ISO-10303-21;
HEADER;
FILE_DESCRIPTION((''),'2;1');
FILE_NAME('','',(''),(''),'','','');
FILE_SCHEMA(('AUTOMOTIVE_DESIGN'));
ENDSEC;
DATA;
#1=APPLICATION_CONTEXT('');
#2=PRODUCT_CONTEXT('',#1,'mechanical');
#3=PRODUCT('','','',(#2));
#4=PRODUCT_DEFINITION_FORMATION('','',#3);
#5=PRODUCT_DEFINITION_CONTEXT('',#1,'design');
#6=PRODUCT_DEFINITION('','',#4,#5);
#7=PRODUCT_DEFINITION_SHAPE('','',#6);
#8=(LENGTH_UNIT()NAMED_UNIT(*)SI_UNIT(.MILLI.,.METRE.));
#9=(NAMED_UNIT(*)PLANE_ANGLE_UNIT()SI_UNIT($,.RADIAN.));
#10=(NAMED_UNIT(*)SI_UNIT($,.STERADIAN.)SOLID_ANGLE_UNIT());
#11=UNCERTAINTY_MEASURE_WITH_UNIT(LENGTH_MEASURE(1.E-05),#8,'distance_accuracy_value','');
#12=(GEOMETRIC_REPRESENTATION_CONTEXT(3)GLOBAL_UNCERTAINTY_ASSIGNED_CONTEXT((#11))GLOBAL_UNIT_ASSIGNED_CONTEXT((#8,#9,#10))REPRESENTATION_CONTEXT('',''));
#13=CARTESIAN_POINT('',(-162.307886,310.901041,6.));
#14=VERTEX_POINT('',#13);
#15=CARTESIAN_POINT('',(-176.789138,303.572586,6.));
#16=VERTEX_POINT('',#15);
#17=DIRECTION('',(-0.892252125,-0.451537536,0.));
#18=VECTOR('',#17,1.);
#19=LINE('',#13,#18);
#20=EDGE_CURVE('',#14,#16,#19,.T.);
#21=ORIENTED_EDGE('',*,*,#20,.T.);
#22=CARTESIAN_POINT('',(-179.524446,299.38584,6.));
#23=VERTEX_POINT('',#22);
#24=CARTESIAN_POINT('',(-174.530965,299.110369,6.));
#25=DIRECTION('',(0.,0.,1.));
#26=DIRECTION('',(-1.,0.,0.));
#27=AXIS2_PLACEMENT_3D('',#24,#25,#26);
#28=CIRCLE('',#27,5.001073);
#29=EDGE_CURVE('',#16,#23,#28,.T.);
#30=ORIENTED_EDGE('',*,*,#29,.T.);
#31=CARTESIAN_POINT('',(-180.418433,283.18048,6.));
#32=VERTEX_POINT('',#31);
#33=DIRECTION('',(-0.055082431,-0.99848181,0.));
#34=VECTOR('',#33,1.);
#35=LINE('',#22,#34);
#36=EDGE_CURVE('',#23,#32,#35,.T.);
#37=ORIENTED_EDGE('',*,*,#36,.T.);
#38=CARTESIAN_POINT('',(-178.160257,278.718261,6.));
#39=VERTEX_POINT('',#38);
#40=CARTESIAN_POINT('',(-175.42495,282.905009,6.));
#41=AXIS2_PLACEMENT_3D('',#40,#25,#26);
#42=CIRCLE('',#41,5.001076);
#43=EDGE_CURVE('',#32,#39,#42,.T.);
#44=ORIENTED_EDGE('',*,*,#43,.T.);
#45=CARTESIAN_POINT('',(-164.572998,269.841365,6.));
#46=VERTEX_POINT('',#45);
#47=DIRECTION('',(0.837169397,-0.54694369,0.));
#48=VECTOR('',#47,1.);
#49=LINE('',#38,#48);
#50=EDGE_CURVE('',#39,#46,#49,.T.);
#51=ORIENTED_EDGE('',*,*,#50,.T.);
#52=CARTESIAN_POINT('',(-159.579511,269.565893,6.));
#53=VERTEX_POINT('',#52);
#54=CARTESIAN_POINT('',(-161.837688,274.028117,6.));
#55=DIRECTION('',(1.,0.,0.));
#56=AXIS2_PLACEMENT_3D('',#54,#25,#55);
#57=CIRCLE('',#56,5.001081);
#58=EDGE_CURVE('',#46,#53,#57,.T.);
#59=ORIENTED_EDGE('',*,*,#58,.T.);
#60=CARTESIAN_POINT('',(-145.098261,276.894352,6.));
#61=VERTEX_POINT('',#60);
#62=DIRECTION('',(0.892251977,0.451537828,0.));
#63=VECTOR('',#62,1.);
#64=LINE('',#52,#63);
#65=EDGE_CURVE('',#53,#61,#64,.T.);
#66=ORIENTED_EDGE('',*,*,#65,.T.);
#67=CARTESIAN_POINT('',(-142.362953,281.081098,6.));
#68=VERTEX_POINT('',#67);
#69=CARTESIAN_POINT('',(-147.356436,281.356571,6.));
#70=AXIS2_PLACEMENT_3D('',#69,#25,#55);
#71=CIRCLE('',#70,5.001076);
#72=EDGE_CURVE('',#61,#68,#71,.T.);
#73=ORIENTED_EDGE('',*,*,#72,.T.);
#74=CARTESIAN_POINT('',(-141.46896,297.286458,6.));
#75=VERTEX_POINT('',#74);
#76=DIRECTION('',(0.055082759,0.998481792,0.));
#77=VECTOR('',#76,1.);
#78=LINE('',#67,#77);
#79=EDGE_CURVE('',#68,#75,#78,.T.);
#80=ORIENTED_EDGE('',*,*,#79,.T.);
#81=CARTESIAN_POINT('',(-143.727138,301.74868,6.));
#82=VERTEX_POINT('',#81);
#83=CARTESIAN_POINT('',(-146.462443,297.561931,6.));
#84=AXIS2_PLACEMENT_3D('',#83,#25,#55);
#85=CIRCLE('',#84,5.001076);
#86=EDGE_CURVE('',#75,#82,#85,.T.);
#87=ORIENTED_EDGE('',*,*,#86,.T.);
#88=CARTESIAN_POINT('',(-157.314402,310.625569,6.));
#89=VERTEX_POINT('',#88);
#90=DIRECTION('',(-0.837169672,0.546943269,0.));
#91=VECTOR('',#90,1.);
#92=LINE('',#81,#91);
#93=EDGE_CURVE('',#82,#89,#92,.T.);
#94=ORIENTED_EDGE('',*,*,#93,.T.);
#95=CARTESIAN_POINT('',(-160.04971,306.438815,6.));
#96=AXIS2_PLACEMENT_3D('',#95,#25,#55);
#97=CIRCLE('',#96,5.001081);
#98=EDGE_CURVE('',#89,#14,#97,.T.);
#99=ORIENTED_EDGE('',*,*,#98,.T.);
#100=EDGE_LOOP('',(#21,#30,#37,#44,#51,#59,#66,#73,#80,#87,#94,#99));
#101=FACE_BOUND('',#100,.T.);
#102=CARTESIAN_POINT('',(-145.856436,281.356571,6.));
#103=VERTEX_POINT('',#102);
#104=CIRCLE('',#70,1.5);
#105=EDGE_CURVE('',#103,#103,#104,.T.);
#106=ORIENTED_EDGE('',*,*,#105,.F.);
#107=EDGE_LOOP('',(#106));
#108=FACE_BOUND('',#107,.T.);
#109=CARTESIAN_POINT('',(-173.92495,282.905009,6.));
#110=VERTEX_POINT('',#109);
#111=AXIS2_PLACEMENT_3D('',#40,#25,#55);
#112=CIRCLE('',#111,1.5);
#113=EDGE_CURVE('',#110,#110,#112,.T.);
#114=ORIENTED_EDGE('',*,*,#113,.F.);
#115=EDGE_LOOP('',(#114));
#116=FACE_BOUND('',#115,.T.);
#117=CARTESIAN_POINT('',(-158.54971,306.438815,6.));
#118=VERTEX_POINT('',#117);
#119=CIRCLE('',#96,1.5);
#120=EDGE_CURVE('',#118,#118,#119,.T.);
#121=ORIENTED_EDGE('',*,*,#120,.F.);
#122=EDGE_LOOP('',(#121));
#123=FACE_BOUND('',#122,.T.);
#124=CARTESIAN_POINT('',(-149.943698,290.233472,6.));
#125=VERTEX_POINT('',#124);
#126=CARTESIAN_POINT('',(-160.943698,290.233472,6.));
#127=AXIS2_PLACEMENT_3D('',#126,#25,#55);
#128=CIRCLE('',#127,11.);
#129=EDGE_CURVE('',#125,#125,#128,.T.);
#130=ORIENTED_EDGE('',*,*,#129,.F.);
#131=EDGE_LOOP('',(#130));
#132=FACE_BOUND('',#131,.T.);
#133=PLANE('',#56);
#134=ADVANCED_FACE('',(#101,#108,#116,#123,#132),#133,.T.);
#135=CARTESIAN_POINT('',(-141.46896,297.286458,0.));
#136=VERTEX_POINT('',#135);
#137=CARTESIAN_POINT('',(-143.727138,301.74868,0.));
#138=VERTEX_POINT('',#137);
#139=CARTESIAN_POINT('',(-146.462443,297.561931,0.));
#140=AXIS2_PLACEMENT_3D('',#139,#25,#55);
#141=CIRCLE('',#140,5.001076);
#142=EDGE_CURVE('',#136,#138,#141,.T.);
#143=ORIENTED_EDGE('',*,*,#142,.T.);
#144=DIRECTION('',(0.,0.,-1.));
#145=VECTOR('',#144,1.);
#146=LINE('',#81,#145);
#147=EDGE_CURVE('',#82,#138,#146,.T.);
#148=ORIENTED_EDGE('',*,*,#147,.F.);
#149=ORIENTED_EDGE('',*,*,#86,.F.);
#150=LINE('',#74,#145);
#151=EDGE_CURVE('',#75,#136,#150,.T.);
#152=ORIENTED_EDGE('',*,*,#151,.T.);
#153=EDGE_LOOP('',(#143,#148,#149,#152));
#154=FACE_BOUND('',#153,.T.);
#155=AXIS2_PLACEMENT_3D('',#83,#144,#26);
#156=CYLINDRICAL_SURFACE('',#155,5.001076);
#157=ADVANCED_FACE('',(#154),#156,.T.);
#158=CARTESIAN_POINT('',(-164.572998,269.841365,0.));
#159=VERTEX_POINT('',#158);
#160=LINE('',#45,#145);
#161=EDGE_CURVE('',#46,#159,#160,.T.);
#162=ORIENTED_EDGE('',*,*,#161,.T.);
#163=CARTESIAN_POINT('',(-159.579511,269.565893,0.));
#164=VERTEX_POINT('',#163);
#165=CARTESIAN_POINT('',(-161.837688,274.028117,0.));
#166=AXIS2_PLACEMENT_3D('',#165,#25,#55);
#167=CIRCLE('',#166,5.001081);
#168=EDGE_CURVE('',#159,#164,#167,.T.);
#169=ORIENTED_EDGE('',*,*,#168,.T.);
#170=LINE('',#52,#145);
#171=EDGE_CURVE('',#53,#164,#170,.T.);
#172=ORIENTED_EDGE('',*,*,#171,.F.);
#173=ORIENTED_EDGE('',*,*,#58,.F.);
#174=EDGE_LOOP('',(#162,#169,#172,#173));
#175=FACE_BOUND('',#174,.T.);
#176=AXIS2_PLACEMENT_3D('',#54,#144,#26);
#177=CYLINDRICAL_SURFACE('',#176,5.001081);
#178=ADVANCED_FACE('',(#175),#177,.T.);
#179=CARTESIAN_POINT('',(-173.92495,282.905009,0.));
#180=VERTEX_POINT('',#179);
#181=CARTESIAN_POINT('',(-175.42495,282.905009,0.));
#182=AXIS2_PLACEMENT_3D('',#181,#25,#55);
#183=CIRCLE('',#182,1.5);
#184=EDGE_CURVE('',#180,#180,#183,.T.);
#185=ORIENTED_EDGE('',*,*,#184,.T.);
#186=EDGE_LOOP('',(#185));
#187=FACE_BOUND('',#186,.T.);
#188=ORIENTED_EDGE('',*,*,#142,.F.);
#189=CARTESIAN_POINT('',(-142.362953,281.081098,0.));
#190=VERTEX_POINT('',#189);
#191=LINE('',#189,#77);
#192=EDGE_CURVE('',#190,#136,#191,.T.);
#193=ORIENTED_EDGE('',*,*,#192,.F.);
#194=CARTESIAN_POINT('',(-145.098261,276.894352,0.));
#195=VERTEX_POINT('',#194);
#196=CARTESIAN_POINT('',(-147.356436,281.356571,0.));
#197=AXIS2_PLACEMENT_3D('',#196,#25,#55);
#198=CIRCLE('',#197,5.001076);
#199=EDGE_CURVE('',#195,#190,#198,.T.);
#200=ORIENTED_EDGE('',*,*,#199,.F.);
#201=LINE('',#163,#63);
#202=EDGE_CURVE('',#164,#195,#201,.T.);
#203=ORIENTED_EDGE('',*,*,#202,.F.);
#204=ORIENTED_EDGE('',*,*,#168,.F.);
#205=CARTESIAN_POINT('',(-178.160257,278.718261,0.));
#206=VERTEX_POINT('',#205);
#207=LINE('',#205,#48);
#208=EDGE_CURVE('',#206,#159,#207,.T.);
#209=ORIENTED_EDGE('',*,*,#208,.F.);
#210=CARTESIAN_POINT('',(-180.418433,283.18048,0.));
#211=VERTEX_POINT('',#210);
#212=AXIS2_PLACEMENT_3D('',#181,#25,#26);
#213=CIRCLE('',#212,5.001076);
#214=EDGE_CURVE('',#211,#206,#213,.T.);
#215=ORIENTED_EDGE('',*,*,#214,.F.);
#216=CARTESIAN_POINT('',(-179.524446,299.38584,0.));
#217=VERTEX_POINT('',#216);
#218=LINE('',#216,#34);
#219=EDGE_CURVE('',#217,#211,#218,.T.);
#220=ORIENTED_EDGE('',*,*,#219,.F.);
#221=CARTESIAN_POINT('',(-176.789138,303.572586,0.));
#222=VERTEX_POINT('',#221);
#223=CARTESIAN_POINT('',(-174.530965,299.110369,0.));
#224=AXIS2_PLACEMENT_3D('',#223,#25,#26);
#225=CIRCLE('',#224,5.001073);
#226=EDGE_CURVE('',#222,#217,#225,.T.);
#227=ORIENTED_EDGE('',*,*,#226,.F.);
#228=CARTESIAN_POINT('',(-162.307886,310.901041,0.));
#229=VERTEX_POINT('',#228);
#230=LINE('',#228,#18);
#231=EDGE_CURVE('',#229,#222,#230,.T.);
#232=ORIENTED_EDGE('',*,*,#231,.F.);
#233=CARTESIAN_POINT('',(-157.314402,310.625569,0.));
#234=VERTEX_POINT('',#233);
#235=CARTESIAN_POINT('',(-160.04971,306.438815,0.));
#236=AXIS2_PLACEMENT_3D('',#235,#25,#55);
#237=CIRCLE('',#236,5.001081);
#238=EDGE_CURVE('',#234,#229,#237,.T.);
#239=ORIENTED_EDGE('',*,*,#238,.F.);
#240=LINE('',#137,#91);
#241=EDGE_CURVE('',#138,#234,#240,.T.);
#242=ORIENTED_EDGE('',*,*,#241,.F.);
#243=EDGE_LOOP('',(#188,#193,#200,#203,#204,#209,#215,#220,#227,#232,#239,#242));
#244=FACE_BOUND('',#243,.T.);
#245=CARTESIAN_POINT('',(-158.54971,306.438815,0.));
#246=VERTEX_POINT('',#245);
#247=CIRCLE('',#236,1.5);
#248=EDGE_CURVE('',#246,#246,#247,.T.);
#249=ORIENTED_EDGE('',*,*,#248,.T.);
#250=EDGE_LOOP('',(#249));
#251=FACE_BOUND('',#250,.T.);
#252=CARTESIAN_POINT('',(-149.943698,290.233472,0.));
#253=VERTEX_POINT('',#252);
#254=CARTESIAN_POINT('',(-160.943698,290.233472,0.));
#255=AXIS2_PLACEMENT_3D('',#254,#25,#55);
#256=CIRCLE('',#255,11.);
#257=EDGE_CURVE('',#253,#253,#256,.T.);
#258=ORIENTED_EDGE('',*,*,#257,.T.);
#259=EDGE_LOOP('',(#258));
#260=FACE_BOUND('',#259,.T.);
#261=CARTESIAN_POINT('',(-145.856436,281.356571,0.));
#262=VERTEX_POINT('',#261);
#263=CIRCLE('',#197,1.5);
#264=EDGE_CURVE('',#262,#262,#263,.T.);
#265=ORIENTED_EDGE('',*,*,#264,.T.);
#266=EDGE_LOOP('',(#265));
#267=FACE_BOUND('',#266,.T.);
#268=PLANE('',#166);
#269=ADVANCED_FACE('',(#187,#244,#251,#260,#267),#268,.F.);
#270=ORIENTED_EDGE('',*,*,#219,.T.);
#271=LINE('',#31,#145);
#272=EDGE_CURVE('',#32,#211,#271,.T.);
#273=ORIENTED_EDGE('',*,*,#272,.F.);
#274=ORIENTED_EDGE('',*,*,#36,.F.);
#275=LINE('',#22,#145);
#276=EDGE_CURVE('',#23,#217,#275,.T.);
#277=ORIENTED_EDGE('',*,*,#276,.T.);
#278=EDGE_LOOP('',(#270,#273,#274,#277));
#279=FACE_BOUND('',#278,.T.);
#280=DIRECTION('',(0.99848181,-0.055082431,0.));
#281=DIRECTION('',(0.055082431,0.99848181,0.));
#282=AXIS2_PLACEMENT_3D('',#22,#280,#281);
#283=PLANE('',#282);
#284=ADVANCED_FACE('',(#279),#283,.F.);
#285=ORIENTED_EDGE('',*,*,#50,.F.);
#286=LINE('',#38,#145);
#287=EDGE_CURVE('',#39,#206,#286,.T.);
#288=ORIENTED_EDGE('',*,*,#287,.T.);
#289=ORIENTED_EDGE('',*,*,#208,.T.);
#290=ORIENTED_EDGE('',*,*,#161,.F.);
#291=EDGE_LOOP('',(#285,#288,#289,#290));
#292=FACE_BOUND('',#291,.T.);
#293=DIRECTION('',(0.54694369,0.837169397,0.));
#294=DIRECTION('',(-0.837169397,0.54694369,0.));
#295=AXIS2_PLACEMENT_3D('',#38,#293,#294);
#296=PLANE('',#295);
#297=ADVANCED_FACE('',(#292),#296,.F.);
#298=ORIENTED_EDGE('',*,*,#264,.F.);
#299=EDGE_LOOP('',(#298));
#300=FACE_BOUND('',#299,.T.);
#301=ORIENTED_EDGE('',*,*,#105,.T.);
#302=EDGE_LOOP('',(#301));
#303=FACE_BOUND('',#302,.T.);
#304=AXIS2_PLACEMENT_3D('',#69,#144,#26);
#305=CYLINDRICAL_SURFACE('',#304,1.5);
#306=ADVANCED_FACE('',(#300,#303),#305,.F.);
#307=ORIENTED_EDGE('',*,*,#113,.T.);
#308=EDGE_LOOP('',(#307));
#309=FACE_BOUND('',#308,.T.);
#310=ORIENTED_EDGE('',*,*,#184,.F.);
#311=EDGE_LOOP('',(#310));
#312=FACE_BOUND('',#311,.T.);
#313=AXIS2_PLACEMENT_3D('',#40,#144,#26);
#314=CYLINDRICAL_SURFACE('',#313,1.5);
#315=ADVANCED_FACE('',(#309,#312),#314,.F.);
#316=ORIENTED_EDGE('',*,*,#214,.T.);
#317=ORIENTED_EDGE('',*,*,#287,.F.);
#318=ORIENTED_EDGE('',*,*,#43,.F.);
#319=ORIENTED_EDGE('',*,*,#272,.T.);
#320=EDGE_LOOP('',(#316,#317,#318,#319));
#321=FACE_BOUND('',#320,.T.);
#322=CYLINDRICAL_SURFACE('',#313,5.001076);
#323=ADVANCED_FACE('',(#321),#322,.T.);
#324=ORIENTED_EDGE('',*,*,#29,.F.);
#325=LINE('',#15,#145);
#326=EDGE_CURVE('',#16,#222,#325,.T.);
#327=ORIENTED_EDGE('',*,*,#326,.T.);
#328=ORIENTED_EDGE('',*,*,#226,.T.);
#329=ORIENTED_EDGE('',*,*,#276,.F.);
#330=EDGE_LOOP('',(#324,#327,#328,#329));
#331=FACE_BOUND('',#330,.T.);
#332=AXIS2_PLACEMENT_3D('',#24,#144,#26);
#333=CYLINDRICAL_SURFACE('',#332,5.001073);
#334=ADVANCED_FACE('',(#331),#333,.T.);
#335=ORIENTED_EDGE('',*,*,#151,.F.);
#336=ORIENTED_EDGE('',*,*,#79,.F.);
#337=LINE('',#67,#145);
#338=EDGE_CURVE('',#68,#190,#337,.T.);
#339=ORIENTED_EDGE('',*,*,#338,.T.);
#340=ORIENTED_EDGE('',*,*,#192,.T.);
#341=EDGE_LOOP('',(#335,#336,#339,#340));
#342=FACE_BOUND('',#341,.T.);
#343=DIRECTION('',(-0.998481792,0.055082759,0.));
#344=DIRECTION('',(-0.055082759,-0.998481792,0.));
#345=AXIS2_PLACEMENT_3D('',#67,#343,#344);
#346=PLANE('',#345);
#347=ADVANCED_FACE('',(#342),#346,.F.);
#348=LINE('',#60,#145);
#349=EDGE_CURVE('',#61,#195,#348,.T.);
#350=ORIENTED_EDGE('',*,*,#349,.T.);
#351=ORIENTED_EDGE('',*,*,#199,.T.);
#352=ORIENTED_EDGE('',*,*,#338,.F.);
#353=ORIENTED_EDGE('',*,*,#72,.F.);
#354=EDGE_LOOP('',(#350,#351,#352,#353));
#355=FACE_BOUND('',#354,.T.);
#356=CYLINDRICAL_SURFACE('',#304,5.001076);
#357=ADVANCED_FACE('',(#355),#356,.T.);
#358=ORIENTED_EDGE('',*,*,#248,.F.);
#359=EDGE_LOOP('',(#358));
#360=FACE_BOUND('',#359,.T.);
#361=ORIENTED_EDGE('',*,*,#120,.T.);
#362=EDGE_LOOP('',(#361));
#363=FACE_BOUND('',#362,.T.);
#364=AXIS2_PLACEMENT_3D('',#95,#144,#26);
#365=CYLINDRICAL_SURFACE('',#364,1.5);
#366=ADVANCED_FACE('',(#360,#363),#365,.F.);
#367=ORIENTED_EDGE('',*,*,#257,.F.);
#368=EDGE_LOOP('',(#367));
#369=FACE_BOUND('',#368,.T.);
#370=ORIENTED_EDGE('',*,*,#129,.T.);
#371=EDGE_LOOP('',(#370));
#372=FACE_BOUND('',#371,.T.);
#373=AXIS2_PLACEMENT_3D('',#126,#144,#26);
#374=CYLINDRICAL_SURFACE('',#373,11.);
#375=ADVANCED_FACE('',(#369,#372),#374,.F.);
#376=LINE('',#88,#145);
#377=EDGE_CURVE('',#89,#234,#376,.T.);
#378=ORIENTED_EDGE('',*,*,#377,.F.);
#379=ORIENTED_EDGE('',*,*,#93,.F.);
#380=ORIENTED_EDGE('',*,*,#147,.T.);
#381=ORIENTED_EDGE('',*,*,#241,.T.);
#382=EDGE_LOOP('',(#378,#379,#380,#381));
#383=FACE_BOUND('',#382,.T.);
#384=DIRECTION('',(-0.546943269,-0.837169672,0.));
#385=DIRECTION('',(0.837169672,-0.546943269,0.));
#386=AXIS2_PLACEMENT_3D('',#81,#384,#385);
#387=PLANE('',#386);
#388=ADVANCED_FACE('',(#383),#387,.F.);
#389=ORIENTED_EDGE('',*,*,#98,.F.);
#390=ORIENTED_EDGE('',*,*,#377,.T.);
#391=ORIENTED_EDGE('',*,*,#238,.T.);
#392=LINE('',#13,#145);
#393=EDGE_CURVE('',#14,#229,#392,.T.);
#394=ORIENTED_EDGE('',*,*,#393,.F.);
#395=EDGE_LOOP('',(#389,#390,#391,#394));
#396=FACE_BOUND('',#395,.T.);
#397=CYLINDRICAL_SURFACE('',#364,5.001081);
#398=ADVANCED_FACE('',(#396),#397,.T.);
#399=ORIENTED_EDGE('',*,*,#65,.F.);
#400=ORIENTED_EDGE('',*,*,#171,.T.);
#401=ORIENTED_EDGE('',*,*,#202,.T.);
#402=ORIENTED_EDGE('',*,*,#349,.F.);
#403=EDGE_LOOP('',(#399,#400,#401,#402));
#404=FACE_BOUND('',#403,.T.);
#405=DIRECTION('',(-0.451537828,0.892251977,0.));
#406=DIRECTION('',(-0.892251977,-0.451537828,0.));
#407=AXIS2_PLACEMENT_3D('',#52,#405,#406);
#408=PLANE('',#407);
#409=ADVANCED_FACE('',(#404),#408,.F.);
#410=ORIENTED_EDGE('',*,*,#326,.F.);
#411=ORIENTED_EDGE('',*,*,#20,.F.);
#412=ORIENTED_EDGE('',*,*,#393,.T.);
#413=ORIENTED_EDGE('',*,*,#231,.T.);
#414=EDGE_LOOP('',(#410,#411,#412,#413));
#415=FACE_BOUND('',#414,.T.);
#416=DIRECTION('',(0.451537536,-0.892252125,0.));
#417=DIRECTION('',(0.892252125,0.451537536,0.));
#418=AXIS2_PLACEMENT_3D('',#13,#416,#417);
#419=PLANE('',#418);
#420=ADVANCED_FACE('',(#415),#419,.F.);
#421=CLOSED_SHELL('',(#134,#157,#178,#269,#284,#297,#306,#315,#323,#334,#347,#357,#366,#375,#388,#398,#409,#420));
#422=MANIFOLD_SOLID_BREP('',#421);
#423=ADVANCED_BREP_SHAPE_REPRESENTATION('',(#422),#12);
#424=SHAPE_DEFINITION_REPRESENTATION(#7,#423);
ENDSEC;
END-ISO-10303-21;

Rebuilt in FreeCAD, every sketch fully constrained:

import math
import FreeCAD as App
import Part
import Sketcher
Q = App.Units.Quantity

doc = App.newDocument("Part")
body = doc.addObject("PartDesign::Body", "Body")

# Sketch on XY plane
sketch1 = body.newObject("Sketcher::SketchObject", "Sketch")
sketch1.AttachmentSupport = (doc.getObject("XY_Plane"), [""])
sketch1.MapMode = "FlatFace"
sketch1.addGeometry([
    Part.LineSegment(App.Vector(-159.6, 269.6, 0), App.Vector(-145.1, 276.9, 0)),  # 0
    Part.ArcOfCircle(Part.Circle(App.Vector(-147.4, 281.4, 0), App.Vector(0, 0, 1), 5), math.radians(-63), math.radians(-3)),  # 1
    Part.LineSegment(App.Vector(-142.4, 281.1, 0), App.Vector(-141.5, 297.3, 0)),  # 2
    Part.ArcOfCircle(Part.Circle(App.Vector(-146.5, 297.6, 0), App.Vector(0, 0, 1), 5), math.radians(-3), math.radians(57)),  # 3
    Part.LineSegment(App.Vector(-143.7, 301.7, 0), App.Vector(-157.3, 310.6, 0)),  # 4
    Part.ArcOfCircle(Part.Circle(App.Vector(-160, 306.4, 0), App.Vector(0, 0, 1), 5), math.radians(57), math.radians(117)),  # 5
    Part.LineSegment(App.Vector(-162.3, 310.9, 0), App.Vector(-176.8, 303.6, 0)),  # 6
    Part.ArcOfCircle(Part.Circle(App.Vector(-174.5, 299.1, 0), App.Vector(0, 0, 1), 5), math.radians(117), math.radians(177)),  # 7
    Part.LineSegment(App.Vector(-179.5, 299.4, 0), App.Vector(-180.4, 283.2, 0)),  # 8
    Part.ArcOfCircle(Part.Circle(App.Vector(-175.4, 282.9, 0), App.Vector(0, 0, 1), 5), math.radians(177), math.radians(237)),  # 9
    Part.LineSegment(App.Vector(-178.2, 278.7, 0), App.Vector(-164.6, 269.8, 0)),  # 10
    Part.ArcOfCircle(Part.Circle(App.Vector(-161.8, 274, 0), App.Vector(0, 0, 1), 5), math.radians(-123), math.radians(-63)),  # 11
    Part.Circle(App.Vector(-175.4, 282.9, 0), App.Vector(0, 0, 1), 1.5),  # 12
    Part.Circle(App.Vector(-147.4, 281.4, 0), App.Vector(0, 0, 1), 1.5),  # 13
    Part.Circle(App.Vector(-160.9, 290.2, 0), App.Vector(0, 0, 1), 11),  # 14
    Part.Circle(App.Vector(-160, 306.4, 0), App.Vector(0, 0, 1), 1.5),  # 15
], False)
sketch1.addConstraint([
    Sketcher.Constraint("Tangent", 0, 2, 1, 1),
    Sketcher.Constraint("Tangent", 1, 2, 2, 1),
    Sketcher.Constraint("Tangent", 2, 2, 3, 1),
    Sketcher.Constraint("Tangent", 3, 2, 4, 1),
    Sketcher.Constraint("Tangent", 4, 2, 5, 1),
    Sketcher.Constraint("Tangent", 5, 2, 6, 1),
    Sketcher.Constraint("Tangent", 6, 2, 7, 1),
    Sketcher.Constraint("Tangent", 7, 2, 8, 1),
    Sketcher.Constraint("Tangent", 8, 2, 9, 1),
    Sketcher.Constraint("Tangent", 9, 2, 10, 1),
    Sketcher.Constraint("Tangent", 10, 2, 11, 1),
    Sketcher.Constraint("Tangent", 11, 2, 0, 1),
    Sketcher.Constraint("Coincident", 12, 3, 9, 3),
    Sketcher.Constraint("Coincident", 13, 3, 1, 3),
    Sketcher.Constraint("Coincident", 15, 3, 5, 3),
    Sketcher.Constraint("Equal", 1, 3),
    Sketcher.Constraint("Equal", 3, 9),
    Sketcher.Constraint("Equal", 5, 11),
    Sketcher.Constraint("Equal", 12, 13),
    Sketcher.Constraint("Equal", 13, 15),
    Sketcher.Constraint("Parallel", 0, 6),
    Sketcher.Constraint("Parallel", 2, 8),
    Sketcher.Constraint("Parallel", 4, 10),
    Sketcher.Constraint("Equal", 0, 2),
    Sketcher.Constraint("Equal", 2, 4),
    Sketcher.Constraint("Equal", 4, 6),
    Sketcher.Constraint("Equal", 6, 8),
    Sketcher.Constraint("Diameter", 12, Q("3 mm")),
    Sketcher.Constraint("Diameter", 14, Q("22 mm")),
    Sketcher.Constraint("Distance", 0, Q("16.23 mm")),
    Sketcher.Constraint("Radius", 5, Q("5.001081 mm")),
    Sketcher.Constraint("Radius", 1, Q("5.001076 mm")),
    Sketcher.Constraint("DistanceY", -1, 1, 1, 2, Q("281.081098 mm")),
    Sketcher.Constraint("DistanceX", 4, 2, -1, 1, Q("157.314402 mm")),
    Sketcher.Constraint("DistanceX", 0, 2, 2, 2, Q("3.629301 mm")),
    Sketcher.Constraint("DistanceY", 7, 2, 5, 2, Q("11.515201 mm")),
    Sketcher.Constraint("DistanceX", 5, 3, -1, 1, Q("160.04971 mm")),
    Sketcher.Constraint("DistanceX", 14, 3, 5, 3, Q("0.893988 mm")),
    Sketcher.Constraint("DistanceY", 14, 3, 3, 3, Q("7.328459 mm")),
])
pad1 = body.newObject("PartDesign::Pad", "Pad")
pad1.Profile = sketch1
pad1.Length = 6

doc.recompute()
